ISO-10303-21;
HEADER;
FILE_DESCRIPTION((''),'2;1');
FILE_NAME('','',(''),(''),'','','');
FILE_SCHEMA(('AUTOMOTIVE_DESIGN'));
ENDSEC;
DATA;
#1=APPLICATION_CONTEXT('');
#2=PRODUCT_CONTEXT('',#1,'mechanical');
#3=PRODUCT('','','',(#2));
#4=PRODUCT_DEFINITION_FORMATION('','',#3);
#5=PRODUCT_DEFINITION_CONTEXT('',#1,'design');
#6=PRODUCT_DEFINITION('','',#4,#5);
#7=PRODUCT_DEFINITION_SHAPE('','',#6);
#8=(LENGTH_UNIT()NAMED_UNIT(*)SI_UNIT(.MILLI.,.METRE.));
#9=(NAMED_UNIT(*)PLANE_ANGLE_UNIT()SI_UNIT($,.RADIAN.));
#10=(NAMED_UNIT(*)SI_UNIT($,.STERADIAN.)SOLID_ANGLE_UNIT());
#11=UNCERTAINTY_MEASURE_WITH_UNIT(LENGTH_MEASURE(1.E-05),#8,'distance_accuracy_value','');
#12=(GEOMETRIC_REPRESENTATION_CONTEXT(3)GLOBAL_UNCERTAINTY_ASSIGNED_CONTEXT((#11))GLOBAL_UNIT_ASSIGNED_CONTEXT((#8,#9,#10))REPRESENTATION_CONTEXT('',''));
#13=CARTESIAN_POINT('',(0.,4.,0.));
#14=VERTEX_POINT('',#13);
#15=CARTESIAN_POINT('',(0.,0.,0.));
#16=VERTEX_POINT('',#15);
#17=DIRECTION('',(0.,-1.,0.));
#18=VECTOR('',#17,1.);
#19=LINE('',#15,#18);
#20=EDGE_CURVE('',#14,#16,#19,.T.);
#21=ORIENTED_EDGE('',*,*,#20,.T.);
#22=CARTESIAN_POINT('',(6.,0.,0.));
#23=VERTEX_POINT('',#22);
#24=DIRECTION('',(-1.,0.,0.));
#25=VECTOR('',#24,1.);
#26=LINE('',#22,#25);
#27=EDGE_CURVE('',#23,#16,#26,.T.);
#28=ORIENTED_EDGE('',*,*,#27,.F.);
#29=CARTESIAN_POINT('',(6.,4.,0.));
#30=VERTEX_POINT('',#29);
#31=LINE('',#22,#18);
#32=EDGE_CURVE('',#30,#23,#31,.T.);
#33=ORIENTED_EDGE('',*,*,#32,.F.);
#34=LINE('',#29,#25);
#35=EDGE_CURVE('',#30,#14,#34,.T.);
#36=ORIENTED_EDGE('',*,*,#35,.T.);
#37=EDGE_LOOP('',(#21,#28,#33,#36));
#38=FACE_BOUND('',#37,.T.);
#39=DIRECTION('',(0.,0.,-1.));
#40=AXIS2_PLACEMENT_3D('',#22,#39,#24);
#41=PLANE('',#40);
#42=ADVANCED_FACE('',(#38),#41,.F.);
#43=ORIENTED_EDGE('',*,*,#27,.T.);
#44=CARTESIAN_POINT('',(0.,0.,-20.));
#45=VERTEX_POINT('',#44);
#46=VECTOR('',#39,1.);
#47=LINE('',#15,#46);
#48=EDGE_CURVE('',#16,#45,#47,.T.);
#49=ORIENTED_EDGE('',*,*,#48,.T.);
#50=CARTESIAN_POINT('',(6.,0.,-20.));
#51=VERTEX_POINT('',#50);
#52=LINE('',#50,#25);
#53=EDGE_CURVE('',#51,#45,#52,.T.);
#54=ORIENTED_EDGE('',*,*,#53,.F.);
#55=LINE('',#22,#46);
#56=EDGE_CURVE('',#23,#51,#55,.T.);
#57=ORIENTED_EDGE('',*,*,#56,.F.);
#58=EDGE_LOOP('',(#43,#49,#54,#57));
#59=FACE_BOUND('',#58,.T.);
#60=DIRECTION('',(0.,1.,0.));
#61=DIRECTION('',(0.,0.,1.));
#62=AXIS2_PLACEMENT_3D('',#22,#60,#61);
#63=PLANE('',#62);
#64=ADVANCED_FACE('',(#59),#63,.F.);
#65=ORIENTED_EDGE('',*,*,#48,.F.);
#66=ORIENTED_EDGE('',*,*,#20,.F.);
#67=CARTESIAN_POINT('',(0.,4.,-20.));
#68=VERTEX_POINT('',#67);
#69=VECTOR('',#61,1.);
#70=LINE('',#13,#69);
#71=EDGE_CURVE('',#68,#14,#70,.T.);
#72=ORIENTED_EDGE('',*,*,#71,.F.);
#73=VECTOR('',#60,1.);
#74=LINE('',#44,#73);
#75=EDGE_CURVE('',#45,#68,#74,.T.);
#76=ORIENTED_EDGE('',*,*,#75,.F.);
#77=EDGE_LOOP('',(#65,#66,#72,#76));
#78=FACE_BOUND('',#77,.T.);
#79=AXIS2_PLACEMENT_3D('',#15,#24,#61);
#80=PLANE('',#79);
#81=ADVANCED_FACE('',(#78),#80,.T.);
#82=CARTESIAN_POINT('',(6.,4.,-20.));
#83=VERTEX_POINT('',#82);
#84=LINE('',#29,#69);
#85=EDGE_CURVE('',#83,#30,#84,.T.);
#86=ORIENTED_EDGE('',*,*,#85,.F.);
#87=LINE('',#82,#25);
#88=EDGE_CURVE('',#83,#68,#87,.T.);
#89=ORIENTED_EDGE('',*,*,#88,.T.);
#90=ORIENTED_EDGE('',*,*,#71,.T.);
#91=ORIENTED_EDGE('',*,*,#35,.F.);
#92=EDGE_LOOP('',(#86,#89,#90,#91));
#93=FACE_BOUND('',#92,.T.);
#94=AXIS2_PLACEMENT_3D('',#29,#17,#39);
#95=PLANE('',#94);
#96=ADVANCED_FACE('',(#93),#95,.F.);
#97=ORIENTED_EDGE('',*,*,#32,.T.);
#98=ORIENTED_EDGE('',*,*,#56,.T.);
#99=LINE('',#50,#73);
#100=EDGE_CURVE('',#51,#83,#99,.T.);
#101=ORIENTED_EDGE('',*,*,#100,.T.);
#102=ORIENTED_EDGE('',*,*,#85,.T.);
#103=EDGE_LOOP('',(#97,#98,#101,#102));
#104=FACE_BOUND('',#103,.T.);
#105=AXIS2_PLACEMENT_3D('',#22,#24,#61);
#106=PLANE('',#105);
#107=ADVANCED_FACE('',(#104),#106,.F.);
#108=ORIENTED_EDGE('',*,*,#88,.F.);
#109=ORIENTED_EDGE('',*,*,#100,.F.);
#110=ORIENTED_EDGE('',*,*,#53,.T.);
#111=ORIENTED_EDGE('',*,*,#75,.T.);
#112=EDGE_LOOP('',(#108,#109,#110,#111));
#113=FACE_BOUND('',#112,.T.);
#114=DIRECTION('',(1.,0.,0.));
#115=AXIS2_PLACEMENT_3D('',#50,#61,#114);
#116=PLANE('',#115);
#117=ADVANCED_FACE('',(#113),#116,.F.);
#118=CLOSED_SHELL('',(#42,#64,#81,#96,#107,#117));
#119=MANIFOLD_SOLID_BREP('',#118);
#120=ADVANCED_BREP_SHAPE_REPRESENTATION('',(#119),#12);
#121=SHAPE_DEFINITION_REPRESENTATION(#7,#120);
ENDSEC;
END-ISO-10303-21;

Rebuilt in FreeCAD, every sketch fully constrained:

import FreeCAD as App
import Part
import Sketcher
from FreeCAD import Vector
Q = App.Units.Quantity

doc = App.newDocument("Part")
body = doc.addObject("PartDesign::Body", "Body")

sketch1 = body.newObject("Sketcher::SketchObject", "Sketch")
sketch1.AttachmentSupport = (doc.getObject("YZ_Plane"), [""])
sketch1.MapMode = "FlatFace"
sketch1.addGeometry([
    Part.LineSegment(Vector(4, 0, 0), Vector(0, 0, 0)),
    Part.LineSegment(Vector(0, 0, 0), Vector(0, -20, 0)),
    Part.LineSegment(Vector(0, -20, 0), Vector(4, -20, 0)),
    Part.LineSegment(Vector(4, -20, 0), Vector(4, 0, 0)),
], False)
sketch1.addConstraint([
    Sketcher.Constraint("Coincident", 0, 2, 1, 1),
    Sketcher.Constraint("Coincident", 1, 2, 2, 1),
    Sketcher.Constraint("Coincident", 2, 2, 3, 1),
    Sketcher.Constraint("Coincident", 3, 2, 0, 1),
    Sketcher.Constraint("Horizontal", 0),
    Sketcher.Constraint("Vertical", 1),
    Sketcher.Constraint("Horizontal", 2),
    Sketcher.Constraint("Vertical", 3),
    Sketcher.Constraint("Coincident", 0, 2, -1, 1),
    Sketcher.Constraint("DistanceX", 0, 2, 0, 1, Q("4 mm")),
    Sketcher.Constraint("DistanceY", 1, 2, 1, 1, Q("20 mm")),
])
pad1 = body.newObject("PartDesign::Pad", "Pad")
pad1.Profile = sketch1
pad1.Length = 6

doc.recompute()
